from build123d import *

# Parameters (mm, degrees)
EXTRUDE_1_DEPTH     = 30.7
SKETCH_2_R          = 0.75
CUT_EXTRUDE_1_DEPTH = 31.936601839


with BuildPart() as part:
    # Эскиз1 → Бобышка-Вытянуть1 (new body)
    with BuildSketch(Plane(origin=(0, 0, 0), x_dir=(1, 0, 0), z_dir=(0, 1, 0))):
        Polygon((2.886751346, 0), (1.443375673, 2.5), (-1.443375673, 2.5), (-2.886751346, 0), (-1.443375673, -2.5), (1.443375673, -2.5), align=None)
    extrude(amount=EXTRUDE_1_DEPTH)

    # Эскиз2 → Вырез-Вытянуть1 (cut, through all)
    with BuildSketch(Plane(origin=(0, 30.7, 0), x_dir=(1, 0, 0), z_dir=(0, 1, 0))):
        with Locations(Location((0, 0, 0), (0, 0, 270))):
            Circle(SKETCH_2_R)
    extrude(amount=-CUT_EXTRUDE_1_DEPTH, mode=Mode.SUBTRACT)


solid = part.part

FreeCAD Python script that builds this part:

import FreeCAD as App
import Part
import Sketcher
Q = App.Units.Quantity

doc = App.newDocument("Part")
params = doc.addObject("Spreadsheet::Sheet", "Params")
for row, (alias, value) in enumerate([
    ("pad1_length", "30.7 mm"),
    ("sketch2_diameter", "1.5 mm"),
], start=1):
    params.set(f"A{row}", alias)
    params.set(f"B{row}", "=" + value)
    params.setAlias(f"B{row}", alias)

body = doc.addObject("PartDesign::Body", "Body")

sketch1 = body.newObject("Sketcher::SketchObject", "Sketch")
sketch1.AttachmentSupport = (doc.getObject("XZ_Plane"), [""])
sketch1.MapMode = "FlatFace"
sketch1.addGeometry(Part.LineSegment(App.Vector(2.9, 0, 0), App.Vector(1.4, -2.5, 0)), False)
sketch1.addGeometry(Part.LineSegment(App.Vector(1.4, -2.5, 0), App.Vector(-1.4, -2.5, 0)), False)
sketch1.addGeometry(Part.LineSegment(App.Vector(-1.4, -2.5, 0), App.Vector(-2.9, 0, 0)), False)
sketch1.addGeometry(Part.LineSegment(App.Vector(-2.9, 0, 0), App.Vector(-1.4, 2.5, 0)), False)
sketch1.addGeometry(Part.LineSegment(App.Vector(-1.4, 2.5, 0), App.Vector(1.4, 2.5, 0)), False)
sketch1.addGeometry(Part.LineSegment(App.Vector(1.4, 2.5, 0), App.Vector(2.9, 0, 0)), False)
sketch1.addConstraint(Sketcher.Constraint("Coincident", 0, 2, 1, 1))
sketch1.addConstraint(Sketcher.Constraint("Coincident", 1, 2, 2, 1))
sketch1.addConstraint(Sketcher.Constraint("Coincident", 2, 2, 3, 1))
sketch1.addConstraint(Sketcher.Constraint("Coincident", 3, 2, 4, 1))
sketch1.addConstraint(Sketcher.Constraint("Coincident", 4, 2, 5, 1))
sketch1.addConstraint(Sketcher.Constraint("Coincident", 5, 2, 0, 1))
sketch1.addConstraint(Sketcher.Constraint("Horizontal", 1))
sketch1.addConstraint(Sketcher.Constraint("Horizontal", 4))
sketch1.addConstraint(Sketcher.Constraint("Symmetric", 0, 2, 3, 2, -1, 1))
sketch1.addConstraint(Sketcher.Constraint("Symmetric", 2, 2, 5, 2, -1, 1))
sketch1.addConstraint(Sketcher.Constraint("PointOnObject", 2, 2, -1))
sketch1.addConstraint(Sketcher.Constraint("Parallel", 2, 5))
sketch1.addConstraint(Sketcher.Constraint("Vertical", 1, 2, 3, 2))
sketch1.addConstraint(Sketcher.Constraint("Angle", 0, Q("-120 deg")))
sketch1.addConstraint(Sketcher.Constraint("DistanceY", 1, 2, 3, 2, Q("5 mm")))
sketch1.addConstraint(Sketcher.Constraint("DistanceX", 1, 2, 1, 1, Q("2.886751 mm")))
pad1 = body.newObject("PartDesign::Pad", "Pad")
pad1.Profile = sketch1
pad1.setExpression("Length", "Params.pad1_length")
pad1.Reversed = True

sketch2 = body.newObject("Sketcher::SketchObject", "Sketch001")
sketch2.AttachmentSupport = (doc.getObject("XZ_Plane"), [""])
sketch2.MapMode = "FlatFace"
sketch2.AttachmentOffset = App.Placement(App.Vector(0, 0, -30.7), App.Rotation())
sketch2.addGeometry(Part.Circle(App.Vector(0, 0, 0), App.Vector(0, 0, 1), 0.8), False)
sketch2.addConstraint(Sketcher.Constraint("Coincident", 0, 3, -1, 1))
sketch2.addConstraint(Sketcher.Constraint("Diameter", 0, Q("1.5 mm")))
sketch2.setExpression("Constraints[1]", "Params.sketch2_diameter")
pocket1 = body.newObject("PartDesign::Pocket", "Pocket")
pocket1.Profile = sketch2
pocket1.Type = "ThroughAll"
pocket1.Reversed = True

doc.recompute()
